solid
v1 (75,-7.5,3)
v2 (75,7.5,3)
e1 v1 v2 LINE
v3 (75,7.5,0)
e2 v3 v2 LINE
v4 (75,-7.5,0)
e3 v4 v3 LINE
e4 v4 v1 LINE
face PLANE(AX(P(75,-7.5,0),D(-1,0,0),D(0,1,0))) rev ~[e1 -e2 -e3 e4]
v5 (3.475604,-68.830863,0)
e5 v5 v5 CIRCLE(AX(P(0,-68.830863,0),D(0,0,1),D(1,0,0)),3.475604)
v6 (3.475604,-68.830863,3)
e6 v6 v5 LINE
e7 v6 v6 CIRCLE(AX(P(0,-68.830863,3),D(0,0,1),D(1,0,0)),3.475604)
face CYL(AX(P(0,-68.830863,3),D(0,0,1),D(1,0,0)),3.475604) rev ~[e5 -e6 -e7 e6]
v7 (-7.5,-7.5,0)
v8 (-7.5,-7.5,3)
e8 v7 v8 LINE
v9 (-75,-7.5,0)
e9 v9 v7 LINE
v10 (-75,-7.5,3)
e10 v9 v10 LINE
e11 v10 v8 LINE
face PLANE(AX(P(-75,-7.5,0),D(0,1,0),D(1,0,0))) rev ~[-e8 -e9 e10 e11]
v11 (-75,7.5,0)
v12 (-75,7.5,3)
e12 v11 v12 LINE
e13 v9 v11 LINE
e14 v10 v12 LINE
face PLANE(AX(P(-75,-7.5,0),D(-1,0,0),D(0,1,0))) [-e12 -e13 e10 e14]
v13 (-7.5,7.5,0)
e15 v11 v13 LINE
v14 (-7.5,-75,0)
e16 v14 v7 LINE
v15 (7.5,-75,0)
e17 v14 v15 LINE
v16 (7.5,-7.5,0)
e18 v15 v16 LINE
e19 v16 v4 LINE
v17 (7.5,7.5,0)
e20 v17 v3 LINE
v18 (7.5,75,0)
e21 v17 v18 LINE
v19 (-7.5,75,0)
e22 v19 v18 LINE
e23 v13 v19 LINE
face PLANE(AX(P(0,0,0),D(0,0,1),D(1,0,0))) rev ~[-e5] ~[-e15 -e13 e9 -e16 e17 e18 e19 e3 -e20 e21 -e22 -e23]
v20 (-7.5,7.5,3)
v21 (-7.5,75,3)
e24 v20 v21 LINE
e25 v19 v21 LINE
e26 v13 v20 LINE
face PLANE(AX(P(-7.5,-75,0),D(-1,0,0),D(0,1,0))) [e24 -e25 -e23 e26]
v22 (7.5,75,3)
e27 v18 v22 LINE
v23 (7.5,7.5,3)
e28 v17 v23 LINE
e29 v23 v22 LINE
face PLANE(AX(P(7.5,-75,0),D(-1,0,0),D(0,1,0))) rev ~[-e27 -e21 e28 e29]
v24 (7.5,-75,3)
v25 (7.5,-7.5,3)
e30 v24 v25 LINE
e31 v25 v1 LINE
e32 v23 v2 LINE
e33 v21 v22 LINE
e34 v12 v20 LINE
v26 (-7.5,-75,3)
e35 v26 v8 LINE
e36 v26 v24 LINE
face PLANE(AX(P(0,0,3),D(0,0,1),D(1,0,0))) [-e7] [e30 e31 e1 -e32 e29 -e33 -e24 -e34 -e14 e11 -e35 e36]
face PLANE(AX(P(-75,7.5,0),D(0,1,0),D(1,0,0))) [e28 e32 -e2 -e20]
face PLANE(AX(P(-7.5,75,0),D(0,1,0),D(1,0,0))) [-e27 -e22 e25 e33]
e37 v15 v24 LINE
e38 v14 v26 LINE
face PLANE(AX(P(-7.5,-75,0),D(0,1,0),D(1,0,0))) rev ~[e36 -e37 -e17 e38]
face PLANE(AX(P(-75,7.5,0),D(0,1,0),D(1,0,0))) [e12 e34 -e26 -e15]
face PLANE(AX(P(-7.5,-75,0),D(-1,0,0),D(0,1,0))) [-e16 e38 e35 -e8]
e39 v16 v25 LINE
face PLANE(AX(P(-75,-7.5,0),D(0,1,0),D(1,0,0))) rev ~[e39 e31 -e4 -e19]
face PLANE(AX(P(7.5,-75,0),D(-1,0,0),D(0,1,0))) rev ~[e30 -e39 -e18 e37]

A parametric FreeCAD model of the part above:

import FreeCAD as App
import Part
import Sketcher

V = App.Vector

doc = App.newDocument("Part")
body = doc.addObject("PartDesign::Body", "Body")

sketch1 = doc.addObject("Sketcher::SketchObject", "Sketch")
body.addObject(sketch1)
sketch1.AttachmentSupport = (doc.XY_Plane, [""])
sketch1.MapMode = "FlatFace"
sketch1.addGeometry(Part.LineSegment(V(-75, 7.5, 0), V(-75, -7.5, 0)), False)
sketch1.addGeometry(Part.LineSegment(V(-75, -7.5, 0), V(75, -7.5, 0)), False)
sketch1.addGeometry(Part.LineSegment(V(75, -7.5, 0), V(75, 7.5, 0)), False)
sketch1.addGeometry(Part.LineSegment(V(75, 7.5, 0), V(-75, 7.5, 0)), False)
sketch1.addConstraint(Sketcher.Constraint("Coincident", 0, 2, 1, 1))
sketch1.addConstraint(Sketcher.Constraint("Coincident", 1, 2, 2, 1))
sketch1.addConstraint(Sketcher.Constraint("Coincident", 2, 2, 3, 1))
sketch1.addConstraint(Sketcher.Constraint("Coincident", 3, 2, 0, 1))
sketch1.addConstraint(Sketcher.Constraint("Vertical", 0))
sketch1.addConstraint(Sketcher.Constraint("Horizontal", 1))
sketch1.addConstraint(Sketcher.Constraint("Vertical", 2))
sketch1.addConstraint(Sketcher.Constraint("Horizontal", 3))
sketch1.addConstraint(Sketcher.Constraint("Symmetric", 0, 2, 2, 2, -1, 1))
sketch1.addConstraint(Sketcher.Constraint("DistanceX", 1, 1, 1, 2, 150.0))
sketch1.addConstraint(Sketcher.Constraint("DistanceY", 0, 2, 0, 1, 15.0))
pad1 = doc.addObject("PartDesign::Pad", "Pad")
body.addObject(pad1)
pad1.Profile = sketch1
pad1.Length = 3

sketch2 = doc.addObject("Sketcher::SketchObject", "Sketch001")
body.addObject(sketch2)
sketch2.AttachmentSupport = (doc.XY_Plane, [""])
sketch2.MapMode = "FlatFace"
sketch2.addGeometry(Part.LineSegment(V(-7.5, 75, 0), V(-7.5, -75, 0)), False)
sketch2.addGeometry(Part.LineSegment(V(-7.5, -75, 0), V(7.5, -75, 0)), False)
sketch2.addGeometry(Part.LineSegment(V(7.5, -75, 0), V(7.5, 75, 0)), False)
sketch2.addGeometry(Part.LineSegment(V(7.5, 75, 0), V(-7.5, 75, 0)), False)
sketch2.addConstraint(Sketcher.Constraint("Coincident", 0, 2, 1, 1))
sketch2.addConstraint(Sketcher.Constraint("Coincident", 1, 2, 2, 1))
sketch2.addConstraint(Sketcher.Constraint("Coincident", 2, 2, 3, 1))
sketch2.addConstraint(Sketcher.Constraint("Coincident", 3, 2, 0, 1))
sketch2.addConstraint(Sketcher.Constraint("Vertical", 0))
sketch2.addConstraint(Sketcher.Constraint("Horizontal", 1))
sketch2.addConstraint(Sketcher.Constraint("Vertical", 2))
sketch2.addConstraint(Sketcher.Constraint("Horizontal", 3))
sketch2.addConstraint(Sketcher.Constraint("Symmetric", 0, 2, 2, 2, -1, 1))
sketch2.addConstraint(Sketcher.Constraint("DistanceX", 1, 1, 1, 2, 15.0))
sketch2.addConstraint(Sketcher.Constraint("DistanceY", 0, 2, 0, 1, 150.0))
pad2 = doc.addObject("PartDesign::Pad", "Pad001")
body.addObject(pad2)
pad2.Profile = sketch2
pad2.Length = 3

sketch3 = doc.addObject("Sketcher::SketchObject", "Sketch002")
body.addObject(sketch3)
sketch3.AttachmentSupport = (doc.XY_Plane, [""])
sketch3.MapMode = "FlatFace"
sketch3.AttachmentOffset = App.Placement(V(0, 0, 3), App.Rotation())
sketch3.addGeometry(Part.Circle(V(0, -68.830863, 0), V(0, 0, 1), 3.475604), False)
sketch3.addConstraint(Sketcher.Constraint("PointOnObject", 0, 3, -2))
sketch3.addConstraint(Sketcher.Constraint("Diameter", 0, 6.951208))
sketch3.addConstraint(Sketcher.Constraint("DistanceY", 0, 3, -1, 1, 68.830863))
pocket1 = doc.addObject("PartDesign::Pocket", "Pocket")
body.addObject(pocket1)
pocket1.Profile = sketch3
pocket1.Length = 25

doc.recompute()
